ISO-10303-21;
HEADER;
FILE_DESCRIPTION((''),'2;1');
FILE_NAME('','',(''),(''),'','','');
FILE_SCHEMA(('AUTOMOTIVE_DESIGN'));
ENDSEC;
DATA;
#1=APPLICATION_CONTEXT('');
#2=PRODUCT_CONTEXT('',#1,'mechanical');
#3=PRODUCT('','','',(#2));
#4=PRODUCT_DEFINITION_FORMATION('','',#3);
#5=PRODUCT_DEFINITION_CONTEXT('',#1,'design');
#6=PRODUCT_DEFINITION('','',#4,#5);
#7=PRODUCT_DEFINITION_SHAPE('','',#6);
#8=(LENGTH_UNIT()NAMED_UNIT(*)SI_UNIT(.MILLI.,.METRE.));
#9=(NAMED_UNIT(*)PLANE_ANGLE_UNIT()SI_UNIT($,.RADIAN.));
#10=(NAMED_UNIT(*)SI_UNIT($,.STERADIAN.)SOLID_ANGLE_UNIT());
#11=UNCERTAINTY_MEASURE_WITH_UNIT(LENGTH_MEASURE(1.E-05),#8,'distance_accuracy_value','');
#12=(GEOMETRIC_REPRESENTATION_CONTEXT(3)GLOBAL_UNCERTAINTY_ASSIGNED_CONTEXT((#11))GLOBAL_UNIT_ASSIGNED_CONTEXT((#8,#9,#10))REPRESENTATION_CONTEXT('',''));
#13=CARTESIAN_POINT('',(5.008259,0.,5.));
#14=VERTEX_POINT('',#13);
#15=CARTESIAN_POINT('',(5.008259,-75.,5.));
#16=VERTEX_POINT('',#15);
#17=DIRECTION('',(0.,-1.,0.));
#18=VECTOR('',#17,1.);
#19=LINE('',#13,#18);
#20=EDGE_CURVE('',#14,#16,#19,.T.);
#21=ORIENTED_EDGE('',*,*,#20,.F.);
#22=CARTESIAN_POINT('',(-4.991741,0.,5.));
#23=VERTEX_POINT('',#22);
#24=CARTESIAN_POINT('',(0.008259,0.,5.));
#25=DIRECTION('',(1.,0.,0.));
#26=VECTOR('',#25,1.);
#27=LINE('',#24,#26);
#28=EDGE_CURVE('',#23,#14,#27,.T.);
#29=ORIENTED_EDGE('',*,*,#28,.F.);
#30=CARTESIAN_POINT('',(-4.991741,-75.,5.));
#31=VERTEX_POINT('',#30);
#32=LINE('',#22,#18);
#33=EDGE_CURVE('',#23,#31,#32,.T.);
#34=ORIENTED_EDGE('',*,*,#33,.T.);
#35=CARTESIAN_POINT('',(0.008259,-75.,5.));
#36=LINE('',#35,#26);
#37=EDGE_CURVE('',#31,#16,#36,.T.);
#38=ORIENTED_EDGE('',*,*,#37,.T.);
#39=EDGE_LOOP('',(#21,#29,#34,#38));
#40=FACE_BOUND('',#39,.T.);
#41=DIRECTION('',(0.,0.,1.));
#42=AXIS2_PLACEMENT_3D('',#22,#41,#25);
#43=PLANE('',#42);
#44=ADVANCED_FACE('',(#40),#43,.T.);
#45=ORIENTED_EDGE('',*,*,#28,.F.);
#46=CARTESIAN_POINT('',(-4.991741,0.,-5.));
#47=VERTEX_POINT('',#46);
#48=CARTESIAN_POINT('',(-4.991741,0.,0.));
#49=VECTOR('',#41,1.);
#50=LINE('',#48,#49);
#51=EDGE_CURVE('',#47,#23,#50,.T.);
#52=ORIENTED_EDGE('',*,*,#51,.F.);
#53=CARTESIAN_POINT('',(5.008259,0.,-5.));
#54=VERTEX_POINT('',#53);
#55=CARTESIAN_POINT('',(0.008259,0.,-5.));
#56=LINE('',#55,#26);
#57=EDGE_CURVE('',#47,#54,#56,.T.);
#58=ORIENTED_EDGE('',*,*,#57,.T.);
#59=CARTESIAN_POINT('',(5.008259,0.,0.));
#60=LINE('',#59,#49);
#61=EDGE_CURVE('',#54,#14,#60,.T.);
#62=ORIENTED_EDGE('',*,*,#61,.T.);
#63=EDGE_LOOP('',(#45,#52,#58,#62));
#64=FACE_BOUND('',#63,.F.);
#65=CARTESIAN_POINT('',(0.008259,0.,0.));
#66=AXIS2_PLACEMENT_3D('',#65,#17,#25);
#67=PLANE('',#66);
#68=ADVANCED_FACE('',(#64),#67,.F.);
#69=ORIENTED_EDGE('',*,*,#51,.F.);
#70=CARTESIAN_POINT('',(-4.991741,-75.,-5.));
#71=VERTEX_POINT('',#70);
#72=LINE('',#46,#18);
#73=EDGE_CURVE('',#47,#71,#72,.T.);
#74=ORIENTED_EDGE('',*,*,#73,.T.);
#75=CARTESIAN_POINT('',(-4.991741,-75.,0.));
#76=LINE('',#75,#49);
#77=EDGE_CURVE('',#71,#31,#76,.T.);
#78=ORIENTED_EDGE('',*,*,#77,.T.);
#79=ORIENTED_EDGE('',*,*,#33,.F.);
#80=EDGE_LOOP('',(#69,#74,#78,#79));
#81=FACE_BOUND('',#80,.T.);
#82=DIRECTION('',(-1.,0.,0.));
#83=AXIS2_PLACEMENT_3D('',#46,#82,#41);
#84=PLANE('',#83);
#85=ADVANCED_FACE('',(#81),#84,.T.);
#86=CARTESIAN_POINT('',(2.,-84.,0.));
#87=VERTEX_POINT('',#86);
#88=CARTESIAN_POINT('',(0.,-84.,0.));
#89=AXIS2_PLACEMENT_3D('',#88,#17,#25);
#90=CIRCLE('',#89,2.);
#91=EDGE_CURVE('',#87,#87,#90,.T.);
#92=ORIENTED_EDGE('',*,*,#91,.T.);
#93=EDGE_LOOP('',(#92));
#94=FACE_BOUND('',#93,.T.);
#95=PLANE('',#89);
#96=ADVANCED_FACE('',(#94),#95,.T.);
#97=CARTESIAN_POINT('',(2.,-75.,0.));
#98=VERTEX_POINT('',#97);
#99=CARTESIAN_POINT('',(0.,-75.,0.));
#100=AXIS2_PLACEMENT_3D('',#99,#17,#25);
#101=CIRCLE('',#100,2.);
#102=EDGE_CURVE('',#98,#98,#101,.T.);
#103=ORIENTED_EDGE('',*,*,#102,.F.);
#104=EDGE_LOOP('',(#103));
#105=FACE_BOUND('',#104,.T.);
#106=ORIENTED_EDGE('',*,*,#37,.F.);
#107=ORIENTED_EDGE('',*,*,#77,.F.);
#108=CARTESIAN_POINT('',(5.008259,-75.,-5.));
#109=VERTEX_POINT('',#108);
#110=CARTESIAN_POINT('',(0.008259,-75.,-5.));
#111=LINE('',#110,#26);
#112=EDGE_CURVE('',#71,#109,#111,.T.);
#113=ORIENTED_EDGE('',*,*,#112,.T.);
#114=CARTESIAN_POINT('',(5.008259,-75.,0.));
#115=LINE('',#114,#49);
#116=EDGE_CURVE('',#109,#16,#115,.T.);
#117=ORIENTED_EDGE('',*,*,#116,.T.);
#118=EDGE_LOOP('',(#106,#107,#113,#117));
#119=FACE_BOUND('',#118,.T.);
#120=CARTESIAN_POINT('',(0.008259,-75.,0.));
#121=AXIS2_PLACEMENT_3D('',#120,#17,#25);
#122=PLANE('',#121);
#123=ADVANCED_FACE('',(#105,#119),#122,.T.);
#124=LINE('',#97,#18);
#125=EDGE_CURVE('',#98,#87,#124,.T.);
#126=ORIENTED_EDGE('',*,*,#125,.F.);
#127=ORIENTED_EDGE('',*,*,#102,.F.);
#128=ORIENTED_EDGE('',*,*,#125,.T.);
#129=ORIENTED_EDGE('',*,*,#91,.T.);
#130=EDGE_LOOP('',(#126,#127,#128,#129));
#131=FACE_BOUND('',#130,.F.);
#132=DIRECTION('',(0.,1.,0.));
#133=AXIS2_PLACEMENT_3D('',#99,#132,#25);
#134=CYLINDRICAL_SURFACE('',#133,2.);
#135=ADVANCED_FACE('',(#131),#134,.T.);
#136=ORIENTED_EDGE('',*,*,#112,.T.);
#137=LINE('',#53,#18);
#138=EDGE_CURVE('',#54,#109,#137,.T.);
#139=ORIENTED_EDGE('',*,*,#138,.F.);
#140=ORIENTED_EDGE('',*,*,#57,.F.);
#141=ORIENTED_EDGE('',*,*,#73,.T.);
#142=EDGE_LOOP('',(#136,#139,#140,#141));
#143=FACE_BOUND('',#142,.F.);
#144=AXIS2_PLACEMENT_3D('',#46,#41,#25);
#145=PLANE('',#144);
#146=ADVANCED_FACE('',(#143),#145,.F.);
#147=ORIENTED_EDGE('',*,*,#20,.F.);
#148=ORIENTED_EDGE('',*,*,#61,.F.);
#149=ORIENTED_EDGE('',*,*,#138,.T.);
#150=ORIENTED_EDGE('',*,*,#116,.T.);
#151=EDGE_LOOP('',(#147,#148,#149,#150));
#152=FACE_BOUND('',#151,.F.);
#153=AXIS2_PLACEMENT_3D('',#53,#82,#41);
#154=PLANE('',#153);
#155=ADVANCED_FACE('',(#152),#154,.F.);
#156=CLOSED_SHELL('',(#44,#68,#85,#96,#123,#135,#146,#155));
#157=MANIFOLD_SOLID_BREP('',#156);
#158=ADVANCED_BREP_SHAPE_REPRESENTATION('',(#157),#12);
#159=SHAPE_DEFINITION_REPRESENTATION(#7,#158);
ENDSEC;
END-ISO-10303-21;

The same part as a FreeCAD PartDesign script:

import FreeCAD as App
import Part
import Sketcher
from FreeCAD import Vector
Q = App.Units.Quantity

doc = App.newDocument("Part")
body = doc.addObject("PartDesign::Body", "Body")

# Sketch on XZ plane
sketch1 = body.newObject("Sketcher::SketchObject", "Sketch")
sketch1.AttachmentSupport = (doc.getObject("XZ_Plane"), [""])
sketch1.MapMode = "FlatFace"
sketch1.addGeometry([
    Part.LineSegment(Vector(-4.991741, 5, 0), Vector(-4.991741, -5, 0)),
    Part.LineSegment(Vector(-4.991741, -5, 0), Vector(5.008259, -5, 0)),
    Part.LineSegment(Vector(5.008259, -5, 0), Vector(5.008259, 5, 0)),
    Part.LineSegment(Vector(5.008259, 5, 0), Vector(-4.991741, 5, 0)),
], False)
sketch1.addConstraint([
    Sketcher.Constraint("Coincident", 0, 2, 1, 1),
    Sketcher.Constraint("Coincident", 1, 2, 2, 1),
    Sketcher.Constraint("Coincident", 2, 2, 3, 1),
    Sketcher.Constraint("Coincident", 3, 2, 0, 1),
    Sketcher.Constraint("Vertical", 0),
    Sketcher.Constraint("Horizontal", 1),
    Sketcher.Constraint("Vertical", 2),
    Sketcher.Constraint("Horizontal", 3),
    Sketcher.Constraint("Equal", 3, 0),
    Sketcher.Constraint("DistanceX", 1, 1, 1, 2, Q("10 mm")),
    Sketcher.Constraint("DistanceY", 0, 2, -1, 1, Q("5 mm")),
    Sketcher.Constraint("DistanceX", 0, 2, -1, 1, Q("4.991741 mm")),
])
pad1 = body.newObject("PartDesign::Pad", "Pad")
pad1.Profile = sketch1
pad1.Length = 75

# Sketch on XZ plane
sketch2 = body.newObject("Sketcher::SketchObject", "Sketch001")
sketch2.AttachmentSupport = (doc.getObject("XZ_Plane"), [""])
sketch2.MapMode = "FlatFace"
sketch2.AttachmentOffset = App.Placement(Vector(0, 0, 75), App.Rotation())
sketch2.addGeometry(Part.Circle(Vector(0, 0, 0), Vector(0, 0, 1), 2), False)
sketch2.addConstraint([
    Sketcher.Constraint("Coincident", 0, 3, -1, 1),
    Sketcher.Constraint("Diameter", 0, Q("4 mm")),
])
pad2 = body.newObject("PartDesign::Pad", "Pad001")
pad2.Profile = sketch2
pad2.Length = 9

doc.recompute()
